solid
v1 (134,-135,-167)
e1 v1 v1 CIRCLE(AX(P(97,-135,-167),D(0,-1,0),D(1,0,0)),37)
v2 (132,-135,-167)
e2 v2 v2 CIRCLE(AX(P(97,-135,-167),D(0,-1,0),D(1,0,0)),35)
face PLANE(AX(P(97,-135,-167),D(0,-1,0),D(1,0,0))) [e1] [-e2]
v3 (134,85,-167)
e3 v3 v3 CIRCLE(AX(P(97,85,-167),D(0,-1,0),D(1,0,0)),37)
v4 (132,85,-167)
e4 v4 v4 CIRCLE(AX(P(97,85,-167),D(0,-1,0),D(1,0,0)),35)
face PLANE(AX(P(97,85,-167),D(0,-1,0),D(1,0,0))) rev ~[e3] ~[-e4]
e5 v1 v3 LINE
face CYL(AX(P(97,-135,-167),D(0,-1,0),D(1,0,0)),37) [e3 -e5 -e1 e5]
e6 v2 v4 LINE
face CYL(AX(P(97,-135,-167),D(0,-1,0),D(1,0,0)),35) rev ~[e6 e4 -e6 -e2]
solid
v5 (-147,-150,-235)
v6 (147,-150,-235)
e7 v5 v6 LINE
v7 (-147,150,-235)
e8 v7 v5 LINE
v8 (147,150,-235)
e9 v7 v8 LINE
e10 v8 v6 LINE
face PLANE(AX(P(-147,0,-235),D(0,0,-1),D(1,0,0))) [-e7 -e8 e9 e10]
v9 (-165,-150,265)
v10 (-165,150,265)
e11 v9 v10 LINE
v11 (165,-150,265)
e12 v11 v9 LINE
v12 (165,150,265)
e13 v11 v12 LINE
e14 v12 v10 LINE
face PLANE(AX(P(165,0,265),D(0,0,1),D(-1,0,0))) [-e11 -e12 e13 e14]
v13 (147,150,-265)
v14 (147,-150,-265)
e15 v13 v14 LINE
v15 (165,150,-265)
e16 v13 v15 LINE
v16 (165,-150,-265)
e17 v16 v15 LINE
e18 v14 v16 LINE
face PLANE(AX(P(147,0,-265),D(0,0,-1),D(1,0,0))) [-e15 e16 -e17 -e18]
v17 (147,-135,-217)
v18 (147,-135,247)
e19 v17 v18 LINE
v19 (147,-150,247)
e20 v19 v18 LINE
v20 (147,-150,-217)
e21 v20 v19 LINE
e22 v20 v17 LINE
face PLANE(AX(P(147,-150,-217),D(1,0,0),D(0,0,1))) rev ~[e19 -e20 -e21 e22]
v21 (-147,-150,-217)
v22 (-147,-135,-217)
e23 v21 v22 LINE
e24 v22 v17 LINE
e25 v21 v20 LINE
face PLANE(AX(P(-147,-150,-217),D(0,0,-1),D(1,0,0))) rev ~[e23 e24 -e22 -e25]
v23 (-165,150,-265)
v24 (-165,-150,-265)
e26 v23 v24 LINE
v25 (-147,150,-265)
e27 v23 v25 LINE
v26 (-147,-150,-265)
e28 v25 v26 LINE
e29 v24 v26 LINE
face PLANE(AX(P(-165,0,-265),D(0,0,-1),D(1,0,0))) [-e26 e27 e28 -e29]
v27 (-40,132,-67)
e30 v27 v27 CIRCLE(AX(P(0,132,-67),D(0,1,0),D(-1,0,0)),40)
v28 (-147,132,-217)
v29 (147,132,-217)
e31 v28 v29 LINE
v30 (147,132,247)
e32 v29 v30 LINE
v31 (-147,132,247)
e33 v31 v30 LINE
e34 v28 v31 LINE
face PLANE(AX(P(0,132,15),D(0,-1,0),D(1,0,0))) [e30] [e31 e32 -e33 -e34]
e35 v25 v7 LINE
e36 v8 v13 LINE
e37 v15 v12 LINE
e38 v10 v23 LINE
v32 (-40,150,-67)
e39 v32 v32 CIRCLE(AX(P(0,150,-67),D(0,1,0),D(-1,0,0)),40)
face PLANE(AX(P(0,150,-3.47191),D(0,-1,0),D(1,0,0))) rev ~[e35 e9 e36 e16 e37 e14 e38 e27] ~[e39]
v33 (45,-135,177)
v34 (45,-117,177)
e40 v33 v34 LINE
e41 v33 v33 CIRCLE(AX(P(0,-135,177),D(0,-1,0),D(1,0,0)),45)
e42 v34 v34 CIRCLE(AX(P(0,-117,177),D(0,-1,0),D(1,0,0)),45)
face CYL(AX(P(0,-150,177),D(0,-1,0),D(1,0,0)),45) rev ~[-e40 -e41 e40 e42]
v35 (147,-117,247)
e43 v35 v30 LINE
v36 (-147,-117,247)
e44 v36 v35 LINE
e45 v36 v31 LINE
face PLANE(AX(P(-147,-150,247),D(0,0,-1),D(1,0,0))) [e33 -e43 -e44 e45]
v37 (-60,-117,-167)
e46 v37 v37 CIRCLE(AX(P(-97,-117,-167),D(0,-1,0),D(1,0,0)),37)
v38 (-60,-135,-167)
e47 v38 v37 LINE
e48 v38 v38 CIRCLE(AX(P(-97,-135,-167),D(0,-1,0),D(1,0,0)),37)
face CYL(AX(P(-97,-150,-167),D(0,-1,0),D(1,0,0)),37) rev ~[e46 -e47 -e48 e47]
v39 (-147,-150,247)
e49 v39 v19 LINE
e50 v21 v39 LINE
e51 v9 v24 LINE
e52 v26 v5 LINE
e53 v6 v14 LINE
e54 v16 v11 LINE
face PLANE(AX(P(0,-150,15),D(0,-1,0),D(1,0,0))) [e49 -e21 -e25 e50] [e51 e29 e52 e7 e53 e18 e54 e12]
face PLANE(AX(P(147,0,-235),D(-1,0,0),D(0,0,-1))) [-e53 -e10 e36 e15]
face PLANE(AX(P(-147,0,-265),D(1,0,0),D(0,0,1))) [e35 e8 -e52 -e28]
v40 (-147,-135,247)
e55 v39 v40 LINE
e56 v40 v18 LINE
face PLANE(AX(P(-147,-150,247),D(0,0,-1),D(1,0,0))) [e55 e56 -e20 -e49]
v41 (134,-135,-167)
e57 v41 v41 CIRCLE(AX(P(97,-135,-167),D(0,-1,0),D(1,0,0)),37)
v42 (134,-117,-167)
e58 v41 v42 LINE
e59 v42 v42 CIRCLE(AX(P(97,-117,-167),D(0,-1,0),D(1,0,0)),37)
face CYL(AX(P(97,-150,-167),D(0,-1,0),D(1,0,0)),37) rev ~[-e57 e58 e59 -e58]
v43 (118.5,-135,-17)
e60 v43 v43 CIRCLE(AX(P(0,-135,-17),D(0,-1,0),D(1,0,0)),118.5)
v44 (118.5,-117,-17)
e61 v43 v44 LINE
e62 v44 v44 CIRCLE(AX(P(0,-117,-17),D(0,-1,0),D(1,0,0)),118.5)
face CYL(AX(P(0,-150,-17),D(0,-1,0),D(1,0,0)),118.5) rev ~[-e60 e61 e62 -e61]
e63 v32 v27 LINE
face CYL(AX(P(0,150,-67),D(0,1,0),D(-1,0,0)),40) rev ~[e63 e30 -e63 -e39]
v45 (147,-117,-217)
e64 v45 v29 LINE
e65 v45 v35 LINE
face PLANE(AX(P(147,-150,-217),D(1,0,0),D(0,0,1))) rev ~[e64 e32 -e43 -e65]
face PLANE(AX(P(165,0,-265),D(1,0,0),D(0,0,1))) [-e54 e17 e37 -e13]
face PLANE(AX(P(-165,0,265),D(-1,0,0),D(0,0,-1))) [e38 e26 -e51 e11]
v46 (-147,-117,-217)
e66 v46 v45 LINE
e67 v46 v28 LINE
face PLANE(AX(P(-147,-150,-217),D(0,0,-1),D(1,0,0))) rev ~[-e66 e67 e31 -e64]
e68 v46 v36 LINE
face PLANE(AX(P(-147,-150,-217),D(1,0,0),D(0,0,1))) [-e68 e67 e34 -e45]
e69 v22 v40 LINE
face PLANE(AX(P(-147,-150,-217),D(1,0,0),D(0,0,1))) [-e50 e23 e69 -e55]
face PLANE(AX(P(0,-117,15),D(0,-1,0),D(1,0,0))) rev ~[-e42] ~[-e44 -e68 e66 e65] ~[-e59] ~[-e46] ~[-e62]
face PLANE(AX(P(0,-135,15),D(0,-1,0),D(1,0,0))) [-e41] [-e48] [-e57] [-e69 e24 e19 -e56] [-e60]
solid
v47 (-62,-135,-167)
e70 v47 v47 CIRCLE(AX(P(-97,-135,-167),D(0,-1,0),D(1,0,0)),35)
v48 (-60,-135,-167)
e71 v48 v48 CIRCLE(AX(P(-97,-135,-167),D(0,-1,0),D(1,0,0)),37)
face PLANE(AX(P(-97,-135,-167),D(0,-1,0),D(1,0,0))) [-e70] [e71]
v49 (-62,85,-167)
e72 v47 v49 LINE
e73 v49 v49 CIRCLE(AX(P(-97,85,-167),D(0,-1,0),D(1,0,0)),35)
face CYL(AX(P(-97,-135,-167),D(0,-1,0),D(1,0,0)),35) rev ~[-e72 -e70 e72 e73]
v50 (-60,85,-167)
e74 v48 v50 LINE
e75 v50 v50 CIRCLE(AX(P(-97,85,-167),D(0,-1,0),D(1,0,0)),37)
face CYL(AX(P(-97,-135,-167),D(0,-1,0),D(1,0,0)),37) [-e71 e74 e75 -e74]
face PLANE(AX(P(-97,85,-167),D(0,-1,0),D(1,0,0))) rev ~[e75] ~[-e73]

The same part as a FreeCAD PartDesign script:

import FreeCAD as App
import Part
import Sketcher
from FreeCAD import Vector


def add_polygon(sketch, points):
    """Adds a closed chain of lines whose ends are joined by coincident constraints."""
    first, n = sketch.GeometryCount, len(points)
    for a, b in zip(points, points[1:] + points[:1]):
        sketch.addGeometry(Part.LineSegment(App.Vector(*a, 0), App.Vector(*b, 0)), False)
    for i in range(n):
        sketch.addConstraint(Sketcher.Constraint("Coincident", first + i, 2, first + (i + 1) % n, 1))

doc = App.newDocument("Part")
body = doc.addObject("PartDesign::Body", "Body")

# Sketch on XZ plane
sketch1 = body.newObject("Sketcher::SketchObject", "Sketch")
sketch1.AttachmentSupport = (doc.getObject("XZ_Plane"), [""])
sketch1.MapMode = "FlatFace"
add_polygon(sketch1, [(-165, 265), (-165, -265), (-147, -265), (-147, -235), (147, -235), (147, -265), (165, -265), (165, 265)])  # lines 0-7
sketch1.addConstraint(Sketcher.Constraint("Vertical", 0))
sketch1.addConstraint(Sketcher.Constraint("Horizontal", 1))
sketch1.addConstraint(Sketcher.Constraint("Vertical", 2))
sketch1.addConstraint(Sketcher.Constraint("Horizontal", 3))
sketch1.addConstraint(Sketcher.Constraint("Vertical", 4))
sketch1.addConstraint(Sketcher.Constraint("Horizontal", 5))
sketch1.addConstraint(Sketcher.Constraint("Vertical", 6))
sketch1.addConstraint(Sketcher.Constraint("Horizontal", 7))
sketch1.addConstraint(Sketcher.Constraint("Symmetric", 0, 2, 6, 2, -1, 1))
sketch1.addConstraint(Sketcher.Constraint("Symmetric", 1, 2, 4, 2, -2))
sketch1.addConstraint(Sketcher.Constraint("DistanceX", 1, 1, 1, 2, 18.0))
sketch1.addConstraint(Sketcher.Constraint("DistanceX", 3, 1, 3, 2, 294.0))
sketch1.addConstraint(Sketcher.Constraint("DistanceY", 0, 2, 0, 1, 530.0))
sketch1.addConstraint(Sketcher.Constraint("DistanceY", 2, 1, 2, 2, 30.0))
pad1 = body.newObject("PartDesign::Pad", "Pad")
pad1.Profile = sketch1
pad1.Length = 300
pad1.Midplane = True

# Sketch on XZ plane
sketch2 = body.newObject("Sketcher::SketchObject", "Sketch001")
sketch2.AttachmentSupport = (doc.getObject("XZ_Plane"), [""])
sketch2.MapMode = "FlatFace"
sketch2.AttachmentOffset = App.Placement(Vector(0, 0, 150), App.Rotation())
add_polygon(sketch2, [(-147, 247), (-147, -217), (147, -217), (147, 247)])  # lines 0-3
sketch2.addConstraint(Sketcher.Constraint("Vertical", 0))
sketch2.addConstraint(Sketcher.Constraint("Horizontal", 1))
sketch2.addConstraint(Sketcher.Constraint("Vertical", 2))
sketch2.addConstraint(Sketcher.Constraint("Horizontal", 3))
sketch2.addConstraint(Sketcher.Constraint("DistanceX", 1, 1, 1, 2, 294.0))
sketch2.addConstraint(Sketcher.Constraint("DistanceY", 0, 2, 0, 1, 464.0))
sketch2.addConstraint(Sketcher.Constraint("DistanceX", 0, 2, -1, 1, 147.0))
sketch2.addConstraint(Sketcher.Constraint("DistanceY", 0, 2, -1, 1, 217.0))
pocket1 = body.newObject("PartDesign::Pocket", "Pocket")
pocket1.Profile = sketch2
pocket1.Length = 282

# Sketch on XZ plane
sketch3 = body.newObject("Sketcher::SketchObject", "Sketch002")
sketch3.AttachmentSupport = (doc.getObject("XZ_Plane"), [""])
sketch3.MapMode = "FlatFace"
sketch3.AttachmentOffset = App.Placement(Vector(0, 0, 150), App.Rotation())
add_polygon(sketch3, [(-147, 247), (-147, -217), (147, -217), (147, 247)])  # lines 0-3
sketch3.addGeometry(Part.Circle(Vector(-97, -167, 0), Vector(0, 0, 1), 37), False)  # 4
sketch3.addGeometry(Part.Circle(Vector(97, -167, 0), Vector(0, 0, 1), 37), False)  # 5
sketch3.addGeometry(Part.Circle(Vector(0, -17, 0), Vector(0, 0, 1), 118.5), False)  # 6
sketch3.addGeometry(Part.Circle(Vector(0, 177, 0), Vector(0, 0, 1), 45), False)  # 7
sketch3.addConstraint(Sketcher.Constraint("Vertical", 0))
sketch3.addConstraint(Sketcher.Constraint("Horizontal", 1))
sketch3.addConstraint(Sketcher.Constraint("Vertical", 2))
sketch3.addConstraint(Sketcher.Constraint("Horizontal", 3))
sketch3.addConstraint(Sketcher.Constraint("Equal", 4, 5))
sketch3.addConstraint(Sketcher.Constraint("Symmetric", 4, 3, 5, 3, -2))
sketch3.addConstraint(Sketcher.Constraint("PointOnObject", 6, 3, -2))
sketch3.addConstraint(Sketcher.Constraint("PointOnObject", 7, 3, -2))
sketch3.addConstraint(Sketcher.Constraint("Diameter", 4, 74.0))
sketch3.addConstraint(Sketcher.Constraint("Diameter", 6, 237.0))
sketch3.addConstraint(Sketcher.Constraint("Diameter", 7, 90.0))
sketch3.addConstraint(Sketcher.Constraint("DistanceX", 1, 1, 1, 2, 294.0))
sketch3.addConstraint(Sketcher.Constraint("DistanceY", 0, 2, 0, 1, 464.0))
sketch3.addConstraint(Sketcher.Constraint("DistanceX", 4, 3, -1, 1, 97.0))
sketch3.addConstraint(Sketcher.Constraint("DistanceY", 4, 3, -1, 1, 167.0))
sketch3.addConstraint(Sketcher.Constraint("DistanceY", 6, 3, -1, 1, 17.0))
sketch3.addConstraint(Sketcher.Constraint("DistanceY", -1, 1, 7, 3, 177.0))
sketch3.addConstraint(Sketcher.Constraint("DistanceX", 0, 2, -1, 1, 147.0))
sketch3.addConstraint(Sketcher.Constraint("DistanceY", 0, 2, -1, 1, 217.0))
pad2 = body.newObject("PartDesign::Pad", "Pad001")
pad2.Profile = sketch3
pad2.Length = 33
pad2.Reversed = True

# Sketch on XZ plane
sketch4 = body.newObject("Sketcher::SketchObject", "Sketch003")
sketch4.AttachmentSupport = (doc.getObject("XZ_Plane"), [""])
sketch4.MapMode = "FlatFace"
sketch4.AttachmentOffset = App.Placement(Vector(0, 0, 150), App.Rotation())
add_polygon(sketch4, [(-147, 247), (-147, -217), (147, -217), (147, 247)])  # lines 0-3
sketch4.addGeometry(Part.Circle(Vector(-97, -167, 0), Vector(0, 0, 1), 37), False)  # 4
sketch4.addGeometry(Part.Circle(Vector(97, -167, 0), Vector(0, 0, 1), 37), False)  # 5
sketch4.addGeometry(Part.Circle(Vector(0, -17, 0), Vector(0, 0, 1), 118.5), False)  # 6
sketch4.addGeometry(Part.Circle(Vector(0, 177, 0), Vector(0, 0, 1), 45), False)  # 7
sketch4.addConstraint(Sketcher.Constraint("Vertical", 0))
sketch4.addConstraint(Sketcher.Constraint("Horizontal", 1))
sketch4.addConstraint(Sketcher.Constraint("Vertical", 2))
sketch4.addConstraint(Sketcher.Constraint("Horizontal", 3))
sketch4.addConstraint(Sketcher.Constraint("Equal", 4, 5))
sketch4.addConstraint(Sketcher.Constraint("Symmetric", 4, 3, 5, 3, -2))
sketch4.addConstraint(Sketcher.Constraint("PointOnObject", 6, 3, -2))
sketch4.addConstraint(Sketcher.Constraint("PointOnObject", 7, 3, -2))
sketch4.addConstraint(Sketcher.Constraint("Diameter", 4, 74.0))
sketch4.addConstraint(Sketcher.Constraint("Diameter", 6, 237.0))
sketch4.addConstraint(Sketcher.Constraint("Diameter", 7, 90.0))
sketch4.addConstraint(Sketcher.Constraint("DistanceX", 1, 1, 1, 2, 294.0))
sketch4.addConstraint(Sketcher.Constraint("DistanceY", 0, 2, 0, 1, 464.0))
sketch4.addConstraint(Sketcher.Constraint("DistanceX", 4, 3, -1, 1, 97.0))
sketch4.addConstraint(Sketcher.Constraint("DistanceY", 4, 3, -1, 1, 167.0))
sketch4.addConstraint(Sketcher.Constraint("DistanceY", 6, 3, -1, 1, 17.0))
sketch4.addConstraint(Sketcher.Constraint("DistanceY", -1, 1, 7, 3, 177.0))
sketch4.addConstraint(Sketcher.Constraint("DistanceX", 0, 2, -1, 1, 147.0))
sketch4.addConstraint(Sketcher.Constraint("DistanceY", 0, 2, -1, 1, 217.0))
pocket2 = body.newObject("PartDesign::Pocket", "Pocket001")
pocket2.Profile = sketch4
pocket2.Length = 15

# Sketch on XZ plane
sketch5 = body.newObject("Sketcher::SketchObject", "Sketch004")
sketch5.AttachmentSupport = (doc.getObject("XZ_Plane"), [""])
sketch5.MapMode = "FlatFace"
sketch5.AttachmentOffset = App.Placement(Vector(0, 0, -150), App.Rotation())
sketch5.addGeometry(Part.Circle(Vector(0, -67, 0), Vector(0, 0, 1), 40), False)
sketch5.addConstraint(Sketcher.Constraint("PointOnObject", 0, 3, -2))
sketch5.addConstraint(Sketcher.Constraint("Diameter", 0, 80.0))
sketch5.addConstraint(Sketcher.Constraint("DistanceY", 0, 3, -1, 1, 67.0))
pocket3 = body.newObject("PartDesign::Pocket", "Pocket002")
pocket3.Profile = sketch5
pocket3.Type = "ThroughAll"
pocket3.Reversed = True
body2 = doc.addObject("PartDesign::Body", "Body001")
body2.AllowCompound = True

# Sketch on XZ plane
sketch6 = body2.newObject("Sketcher::SketchObject", "Sketch005")
sketch6.AttachmentSupport = (doc.getObject("XZ_Plane001"), [""])
sketch6.MapMode = "FlatFace"
sketch6.AttachmentOffset = App.Placement(Vector(0, 0, 135), App.Rotation())
sketch6.addGeometry(Part.Circle(Vector(-97, -167, 0), Vector(0, 0, 1), 37), False)
sketch6.addGeometry(Part.Circle(Vector(-97, -167, 0), Vector(0, 0, 1), 35), False)
sketch6.addGeometry(Part.Circle(Vector(97, -167, 0), Vector(0, 0, 1), 37), False)
sketch6.addGeometry(Part.Circle(Vector(97, -167, 0), Vector(0, 0, 1), 35), False)
sketch6.addConstraint(Sketcher.Constraint("Coincident", 1, 3, 0, 3))
sketch6.addConstraint(Sketcher.Constraint("Coincident", 3, 3, 2, 3))
sketch6.addConstraint(Sketcher.Constraint("Equal", 0, 2))
sketch6.addConstraint(Sketcher.Constraint("Equal", 1, 3))
sketch6.addConstraint(Sketcher.Constraint("Symmetric", 0, 3, 2, 3, -2))
sketch6.addConstraint(Sketcher.Constraint("Diameter", 0, 74.0))
sketch6.addConstraint(Sketcher.Constraint("Diameter", 1, 70.0))
sketch6.addConstraint(Sketcher.Constraint("DistanceX", 0, 3, -1, 1, 97.0))
sketch6.addConstraint(Sketcher.Constraint("DistanceY", 0, 3, -1, 1, 167.0))
pad3 = body2.newObject("PartDesign::Pad", "Pad002")
pad3.Profile = sketch6
pad3.Length = 220
pad3.Reversed = True

doc.recompute()
